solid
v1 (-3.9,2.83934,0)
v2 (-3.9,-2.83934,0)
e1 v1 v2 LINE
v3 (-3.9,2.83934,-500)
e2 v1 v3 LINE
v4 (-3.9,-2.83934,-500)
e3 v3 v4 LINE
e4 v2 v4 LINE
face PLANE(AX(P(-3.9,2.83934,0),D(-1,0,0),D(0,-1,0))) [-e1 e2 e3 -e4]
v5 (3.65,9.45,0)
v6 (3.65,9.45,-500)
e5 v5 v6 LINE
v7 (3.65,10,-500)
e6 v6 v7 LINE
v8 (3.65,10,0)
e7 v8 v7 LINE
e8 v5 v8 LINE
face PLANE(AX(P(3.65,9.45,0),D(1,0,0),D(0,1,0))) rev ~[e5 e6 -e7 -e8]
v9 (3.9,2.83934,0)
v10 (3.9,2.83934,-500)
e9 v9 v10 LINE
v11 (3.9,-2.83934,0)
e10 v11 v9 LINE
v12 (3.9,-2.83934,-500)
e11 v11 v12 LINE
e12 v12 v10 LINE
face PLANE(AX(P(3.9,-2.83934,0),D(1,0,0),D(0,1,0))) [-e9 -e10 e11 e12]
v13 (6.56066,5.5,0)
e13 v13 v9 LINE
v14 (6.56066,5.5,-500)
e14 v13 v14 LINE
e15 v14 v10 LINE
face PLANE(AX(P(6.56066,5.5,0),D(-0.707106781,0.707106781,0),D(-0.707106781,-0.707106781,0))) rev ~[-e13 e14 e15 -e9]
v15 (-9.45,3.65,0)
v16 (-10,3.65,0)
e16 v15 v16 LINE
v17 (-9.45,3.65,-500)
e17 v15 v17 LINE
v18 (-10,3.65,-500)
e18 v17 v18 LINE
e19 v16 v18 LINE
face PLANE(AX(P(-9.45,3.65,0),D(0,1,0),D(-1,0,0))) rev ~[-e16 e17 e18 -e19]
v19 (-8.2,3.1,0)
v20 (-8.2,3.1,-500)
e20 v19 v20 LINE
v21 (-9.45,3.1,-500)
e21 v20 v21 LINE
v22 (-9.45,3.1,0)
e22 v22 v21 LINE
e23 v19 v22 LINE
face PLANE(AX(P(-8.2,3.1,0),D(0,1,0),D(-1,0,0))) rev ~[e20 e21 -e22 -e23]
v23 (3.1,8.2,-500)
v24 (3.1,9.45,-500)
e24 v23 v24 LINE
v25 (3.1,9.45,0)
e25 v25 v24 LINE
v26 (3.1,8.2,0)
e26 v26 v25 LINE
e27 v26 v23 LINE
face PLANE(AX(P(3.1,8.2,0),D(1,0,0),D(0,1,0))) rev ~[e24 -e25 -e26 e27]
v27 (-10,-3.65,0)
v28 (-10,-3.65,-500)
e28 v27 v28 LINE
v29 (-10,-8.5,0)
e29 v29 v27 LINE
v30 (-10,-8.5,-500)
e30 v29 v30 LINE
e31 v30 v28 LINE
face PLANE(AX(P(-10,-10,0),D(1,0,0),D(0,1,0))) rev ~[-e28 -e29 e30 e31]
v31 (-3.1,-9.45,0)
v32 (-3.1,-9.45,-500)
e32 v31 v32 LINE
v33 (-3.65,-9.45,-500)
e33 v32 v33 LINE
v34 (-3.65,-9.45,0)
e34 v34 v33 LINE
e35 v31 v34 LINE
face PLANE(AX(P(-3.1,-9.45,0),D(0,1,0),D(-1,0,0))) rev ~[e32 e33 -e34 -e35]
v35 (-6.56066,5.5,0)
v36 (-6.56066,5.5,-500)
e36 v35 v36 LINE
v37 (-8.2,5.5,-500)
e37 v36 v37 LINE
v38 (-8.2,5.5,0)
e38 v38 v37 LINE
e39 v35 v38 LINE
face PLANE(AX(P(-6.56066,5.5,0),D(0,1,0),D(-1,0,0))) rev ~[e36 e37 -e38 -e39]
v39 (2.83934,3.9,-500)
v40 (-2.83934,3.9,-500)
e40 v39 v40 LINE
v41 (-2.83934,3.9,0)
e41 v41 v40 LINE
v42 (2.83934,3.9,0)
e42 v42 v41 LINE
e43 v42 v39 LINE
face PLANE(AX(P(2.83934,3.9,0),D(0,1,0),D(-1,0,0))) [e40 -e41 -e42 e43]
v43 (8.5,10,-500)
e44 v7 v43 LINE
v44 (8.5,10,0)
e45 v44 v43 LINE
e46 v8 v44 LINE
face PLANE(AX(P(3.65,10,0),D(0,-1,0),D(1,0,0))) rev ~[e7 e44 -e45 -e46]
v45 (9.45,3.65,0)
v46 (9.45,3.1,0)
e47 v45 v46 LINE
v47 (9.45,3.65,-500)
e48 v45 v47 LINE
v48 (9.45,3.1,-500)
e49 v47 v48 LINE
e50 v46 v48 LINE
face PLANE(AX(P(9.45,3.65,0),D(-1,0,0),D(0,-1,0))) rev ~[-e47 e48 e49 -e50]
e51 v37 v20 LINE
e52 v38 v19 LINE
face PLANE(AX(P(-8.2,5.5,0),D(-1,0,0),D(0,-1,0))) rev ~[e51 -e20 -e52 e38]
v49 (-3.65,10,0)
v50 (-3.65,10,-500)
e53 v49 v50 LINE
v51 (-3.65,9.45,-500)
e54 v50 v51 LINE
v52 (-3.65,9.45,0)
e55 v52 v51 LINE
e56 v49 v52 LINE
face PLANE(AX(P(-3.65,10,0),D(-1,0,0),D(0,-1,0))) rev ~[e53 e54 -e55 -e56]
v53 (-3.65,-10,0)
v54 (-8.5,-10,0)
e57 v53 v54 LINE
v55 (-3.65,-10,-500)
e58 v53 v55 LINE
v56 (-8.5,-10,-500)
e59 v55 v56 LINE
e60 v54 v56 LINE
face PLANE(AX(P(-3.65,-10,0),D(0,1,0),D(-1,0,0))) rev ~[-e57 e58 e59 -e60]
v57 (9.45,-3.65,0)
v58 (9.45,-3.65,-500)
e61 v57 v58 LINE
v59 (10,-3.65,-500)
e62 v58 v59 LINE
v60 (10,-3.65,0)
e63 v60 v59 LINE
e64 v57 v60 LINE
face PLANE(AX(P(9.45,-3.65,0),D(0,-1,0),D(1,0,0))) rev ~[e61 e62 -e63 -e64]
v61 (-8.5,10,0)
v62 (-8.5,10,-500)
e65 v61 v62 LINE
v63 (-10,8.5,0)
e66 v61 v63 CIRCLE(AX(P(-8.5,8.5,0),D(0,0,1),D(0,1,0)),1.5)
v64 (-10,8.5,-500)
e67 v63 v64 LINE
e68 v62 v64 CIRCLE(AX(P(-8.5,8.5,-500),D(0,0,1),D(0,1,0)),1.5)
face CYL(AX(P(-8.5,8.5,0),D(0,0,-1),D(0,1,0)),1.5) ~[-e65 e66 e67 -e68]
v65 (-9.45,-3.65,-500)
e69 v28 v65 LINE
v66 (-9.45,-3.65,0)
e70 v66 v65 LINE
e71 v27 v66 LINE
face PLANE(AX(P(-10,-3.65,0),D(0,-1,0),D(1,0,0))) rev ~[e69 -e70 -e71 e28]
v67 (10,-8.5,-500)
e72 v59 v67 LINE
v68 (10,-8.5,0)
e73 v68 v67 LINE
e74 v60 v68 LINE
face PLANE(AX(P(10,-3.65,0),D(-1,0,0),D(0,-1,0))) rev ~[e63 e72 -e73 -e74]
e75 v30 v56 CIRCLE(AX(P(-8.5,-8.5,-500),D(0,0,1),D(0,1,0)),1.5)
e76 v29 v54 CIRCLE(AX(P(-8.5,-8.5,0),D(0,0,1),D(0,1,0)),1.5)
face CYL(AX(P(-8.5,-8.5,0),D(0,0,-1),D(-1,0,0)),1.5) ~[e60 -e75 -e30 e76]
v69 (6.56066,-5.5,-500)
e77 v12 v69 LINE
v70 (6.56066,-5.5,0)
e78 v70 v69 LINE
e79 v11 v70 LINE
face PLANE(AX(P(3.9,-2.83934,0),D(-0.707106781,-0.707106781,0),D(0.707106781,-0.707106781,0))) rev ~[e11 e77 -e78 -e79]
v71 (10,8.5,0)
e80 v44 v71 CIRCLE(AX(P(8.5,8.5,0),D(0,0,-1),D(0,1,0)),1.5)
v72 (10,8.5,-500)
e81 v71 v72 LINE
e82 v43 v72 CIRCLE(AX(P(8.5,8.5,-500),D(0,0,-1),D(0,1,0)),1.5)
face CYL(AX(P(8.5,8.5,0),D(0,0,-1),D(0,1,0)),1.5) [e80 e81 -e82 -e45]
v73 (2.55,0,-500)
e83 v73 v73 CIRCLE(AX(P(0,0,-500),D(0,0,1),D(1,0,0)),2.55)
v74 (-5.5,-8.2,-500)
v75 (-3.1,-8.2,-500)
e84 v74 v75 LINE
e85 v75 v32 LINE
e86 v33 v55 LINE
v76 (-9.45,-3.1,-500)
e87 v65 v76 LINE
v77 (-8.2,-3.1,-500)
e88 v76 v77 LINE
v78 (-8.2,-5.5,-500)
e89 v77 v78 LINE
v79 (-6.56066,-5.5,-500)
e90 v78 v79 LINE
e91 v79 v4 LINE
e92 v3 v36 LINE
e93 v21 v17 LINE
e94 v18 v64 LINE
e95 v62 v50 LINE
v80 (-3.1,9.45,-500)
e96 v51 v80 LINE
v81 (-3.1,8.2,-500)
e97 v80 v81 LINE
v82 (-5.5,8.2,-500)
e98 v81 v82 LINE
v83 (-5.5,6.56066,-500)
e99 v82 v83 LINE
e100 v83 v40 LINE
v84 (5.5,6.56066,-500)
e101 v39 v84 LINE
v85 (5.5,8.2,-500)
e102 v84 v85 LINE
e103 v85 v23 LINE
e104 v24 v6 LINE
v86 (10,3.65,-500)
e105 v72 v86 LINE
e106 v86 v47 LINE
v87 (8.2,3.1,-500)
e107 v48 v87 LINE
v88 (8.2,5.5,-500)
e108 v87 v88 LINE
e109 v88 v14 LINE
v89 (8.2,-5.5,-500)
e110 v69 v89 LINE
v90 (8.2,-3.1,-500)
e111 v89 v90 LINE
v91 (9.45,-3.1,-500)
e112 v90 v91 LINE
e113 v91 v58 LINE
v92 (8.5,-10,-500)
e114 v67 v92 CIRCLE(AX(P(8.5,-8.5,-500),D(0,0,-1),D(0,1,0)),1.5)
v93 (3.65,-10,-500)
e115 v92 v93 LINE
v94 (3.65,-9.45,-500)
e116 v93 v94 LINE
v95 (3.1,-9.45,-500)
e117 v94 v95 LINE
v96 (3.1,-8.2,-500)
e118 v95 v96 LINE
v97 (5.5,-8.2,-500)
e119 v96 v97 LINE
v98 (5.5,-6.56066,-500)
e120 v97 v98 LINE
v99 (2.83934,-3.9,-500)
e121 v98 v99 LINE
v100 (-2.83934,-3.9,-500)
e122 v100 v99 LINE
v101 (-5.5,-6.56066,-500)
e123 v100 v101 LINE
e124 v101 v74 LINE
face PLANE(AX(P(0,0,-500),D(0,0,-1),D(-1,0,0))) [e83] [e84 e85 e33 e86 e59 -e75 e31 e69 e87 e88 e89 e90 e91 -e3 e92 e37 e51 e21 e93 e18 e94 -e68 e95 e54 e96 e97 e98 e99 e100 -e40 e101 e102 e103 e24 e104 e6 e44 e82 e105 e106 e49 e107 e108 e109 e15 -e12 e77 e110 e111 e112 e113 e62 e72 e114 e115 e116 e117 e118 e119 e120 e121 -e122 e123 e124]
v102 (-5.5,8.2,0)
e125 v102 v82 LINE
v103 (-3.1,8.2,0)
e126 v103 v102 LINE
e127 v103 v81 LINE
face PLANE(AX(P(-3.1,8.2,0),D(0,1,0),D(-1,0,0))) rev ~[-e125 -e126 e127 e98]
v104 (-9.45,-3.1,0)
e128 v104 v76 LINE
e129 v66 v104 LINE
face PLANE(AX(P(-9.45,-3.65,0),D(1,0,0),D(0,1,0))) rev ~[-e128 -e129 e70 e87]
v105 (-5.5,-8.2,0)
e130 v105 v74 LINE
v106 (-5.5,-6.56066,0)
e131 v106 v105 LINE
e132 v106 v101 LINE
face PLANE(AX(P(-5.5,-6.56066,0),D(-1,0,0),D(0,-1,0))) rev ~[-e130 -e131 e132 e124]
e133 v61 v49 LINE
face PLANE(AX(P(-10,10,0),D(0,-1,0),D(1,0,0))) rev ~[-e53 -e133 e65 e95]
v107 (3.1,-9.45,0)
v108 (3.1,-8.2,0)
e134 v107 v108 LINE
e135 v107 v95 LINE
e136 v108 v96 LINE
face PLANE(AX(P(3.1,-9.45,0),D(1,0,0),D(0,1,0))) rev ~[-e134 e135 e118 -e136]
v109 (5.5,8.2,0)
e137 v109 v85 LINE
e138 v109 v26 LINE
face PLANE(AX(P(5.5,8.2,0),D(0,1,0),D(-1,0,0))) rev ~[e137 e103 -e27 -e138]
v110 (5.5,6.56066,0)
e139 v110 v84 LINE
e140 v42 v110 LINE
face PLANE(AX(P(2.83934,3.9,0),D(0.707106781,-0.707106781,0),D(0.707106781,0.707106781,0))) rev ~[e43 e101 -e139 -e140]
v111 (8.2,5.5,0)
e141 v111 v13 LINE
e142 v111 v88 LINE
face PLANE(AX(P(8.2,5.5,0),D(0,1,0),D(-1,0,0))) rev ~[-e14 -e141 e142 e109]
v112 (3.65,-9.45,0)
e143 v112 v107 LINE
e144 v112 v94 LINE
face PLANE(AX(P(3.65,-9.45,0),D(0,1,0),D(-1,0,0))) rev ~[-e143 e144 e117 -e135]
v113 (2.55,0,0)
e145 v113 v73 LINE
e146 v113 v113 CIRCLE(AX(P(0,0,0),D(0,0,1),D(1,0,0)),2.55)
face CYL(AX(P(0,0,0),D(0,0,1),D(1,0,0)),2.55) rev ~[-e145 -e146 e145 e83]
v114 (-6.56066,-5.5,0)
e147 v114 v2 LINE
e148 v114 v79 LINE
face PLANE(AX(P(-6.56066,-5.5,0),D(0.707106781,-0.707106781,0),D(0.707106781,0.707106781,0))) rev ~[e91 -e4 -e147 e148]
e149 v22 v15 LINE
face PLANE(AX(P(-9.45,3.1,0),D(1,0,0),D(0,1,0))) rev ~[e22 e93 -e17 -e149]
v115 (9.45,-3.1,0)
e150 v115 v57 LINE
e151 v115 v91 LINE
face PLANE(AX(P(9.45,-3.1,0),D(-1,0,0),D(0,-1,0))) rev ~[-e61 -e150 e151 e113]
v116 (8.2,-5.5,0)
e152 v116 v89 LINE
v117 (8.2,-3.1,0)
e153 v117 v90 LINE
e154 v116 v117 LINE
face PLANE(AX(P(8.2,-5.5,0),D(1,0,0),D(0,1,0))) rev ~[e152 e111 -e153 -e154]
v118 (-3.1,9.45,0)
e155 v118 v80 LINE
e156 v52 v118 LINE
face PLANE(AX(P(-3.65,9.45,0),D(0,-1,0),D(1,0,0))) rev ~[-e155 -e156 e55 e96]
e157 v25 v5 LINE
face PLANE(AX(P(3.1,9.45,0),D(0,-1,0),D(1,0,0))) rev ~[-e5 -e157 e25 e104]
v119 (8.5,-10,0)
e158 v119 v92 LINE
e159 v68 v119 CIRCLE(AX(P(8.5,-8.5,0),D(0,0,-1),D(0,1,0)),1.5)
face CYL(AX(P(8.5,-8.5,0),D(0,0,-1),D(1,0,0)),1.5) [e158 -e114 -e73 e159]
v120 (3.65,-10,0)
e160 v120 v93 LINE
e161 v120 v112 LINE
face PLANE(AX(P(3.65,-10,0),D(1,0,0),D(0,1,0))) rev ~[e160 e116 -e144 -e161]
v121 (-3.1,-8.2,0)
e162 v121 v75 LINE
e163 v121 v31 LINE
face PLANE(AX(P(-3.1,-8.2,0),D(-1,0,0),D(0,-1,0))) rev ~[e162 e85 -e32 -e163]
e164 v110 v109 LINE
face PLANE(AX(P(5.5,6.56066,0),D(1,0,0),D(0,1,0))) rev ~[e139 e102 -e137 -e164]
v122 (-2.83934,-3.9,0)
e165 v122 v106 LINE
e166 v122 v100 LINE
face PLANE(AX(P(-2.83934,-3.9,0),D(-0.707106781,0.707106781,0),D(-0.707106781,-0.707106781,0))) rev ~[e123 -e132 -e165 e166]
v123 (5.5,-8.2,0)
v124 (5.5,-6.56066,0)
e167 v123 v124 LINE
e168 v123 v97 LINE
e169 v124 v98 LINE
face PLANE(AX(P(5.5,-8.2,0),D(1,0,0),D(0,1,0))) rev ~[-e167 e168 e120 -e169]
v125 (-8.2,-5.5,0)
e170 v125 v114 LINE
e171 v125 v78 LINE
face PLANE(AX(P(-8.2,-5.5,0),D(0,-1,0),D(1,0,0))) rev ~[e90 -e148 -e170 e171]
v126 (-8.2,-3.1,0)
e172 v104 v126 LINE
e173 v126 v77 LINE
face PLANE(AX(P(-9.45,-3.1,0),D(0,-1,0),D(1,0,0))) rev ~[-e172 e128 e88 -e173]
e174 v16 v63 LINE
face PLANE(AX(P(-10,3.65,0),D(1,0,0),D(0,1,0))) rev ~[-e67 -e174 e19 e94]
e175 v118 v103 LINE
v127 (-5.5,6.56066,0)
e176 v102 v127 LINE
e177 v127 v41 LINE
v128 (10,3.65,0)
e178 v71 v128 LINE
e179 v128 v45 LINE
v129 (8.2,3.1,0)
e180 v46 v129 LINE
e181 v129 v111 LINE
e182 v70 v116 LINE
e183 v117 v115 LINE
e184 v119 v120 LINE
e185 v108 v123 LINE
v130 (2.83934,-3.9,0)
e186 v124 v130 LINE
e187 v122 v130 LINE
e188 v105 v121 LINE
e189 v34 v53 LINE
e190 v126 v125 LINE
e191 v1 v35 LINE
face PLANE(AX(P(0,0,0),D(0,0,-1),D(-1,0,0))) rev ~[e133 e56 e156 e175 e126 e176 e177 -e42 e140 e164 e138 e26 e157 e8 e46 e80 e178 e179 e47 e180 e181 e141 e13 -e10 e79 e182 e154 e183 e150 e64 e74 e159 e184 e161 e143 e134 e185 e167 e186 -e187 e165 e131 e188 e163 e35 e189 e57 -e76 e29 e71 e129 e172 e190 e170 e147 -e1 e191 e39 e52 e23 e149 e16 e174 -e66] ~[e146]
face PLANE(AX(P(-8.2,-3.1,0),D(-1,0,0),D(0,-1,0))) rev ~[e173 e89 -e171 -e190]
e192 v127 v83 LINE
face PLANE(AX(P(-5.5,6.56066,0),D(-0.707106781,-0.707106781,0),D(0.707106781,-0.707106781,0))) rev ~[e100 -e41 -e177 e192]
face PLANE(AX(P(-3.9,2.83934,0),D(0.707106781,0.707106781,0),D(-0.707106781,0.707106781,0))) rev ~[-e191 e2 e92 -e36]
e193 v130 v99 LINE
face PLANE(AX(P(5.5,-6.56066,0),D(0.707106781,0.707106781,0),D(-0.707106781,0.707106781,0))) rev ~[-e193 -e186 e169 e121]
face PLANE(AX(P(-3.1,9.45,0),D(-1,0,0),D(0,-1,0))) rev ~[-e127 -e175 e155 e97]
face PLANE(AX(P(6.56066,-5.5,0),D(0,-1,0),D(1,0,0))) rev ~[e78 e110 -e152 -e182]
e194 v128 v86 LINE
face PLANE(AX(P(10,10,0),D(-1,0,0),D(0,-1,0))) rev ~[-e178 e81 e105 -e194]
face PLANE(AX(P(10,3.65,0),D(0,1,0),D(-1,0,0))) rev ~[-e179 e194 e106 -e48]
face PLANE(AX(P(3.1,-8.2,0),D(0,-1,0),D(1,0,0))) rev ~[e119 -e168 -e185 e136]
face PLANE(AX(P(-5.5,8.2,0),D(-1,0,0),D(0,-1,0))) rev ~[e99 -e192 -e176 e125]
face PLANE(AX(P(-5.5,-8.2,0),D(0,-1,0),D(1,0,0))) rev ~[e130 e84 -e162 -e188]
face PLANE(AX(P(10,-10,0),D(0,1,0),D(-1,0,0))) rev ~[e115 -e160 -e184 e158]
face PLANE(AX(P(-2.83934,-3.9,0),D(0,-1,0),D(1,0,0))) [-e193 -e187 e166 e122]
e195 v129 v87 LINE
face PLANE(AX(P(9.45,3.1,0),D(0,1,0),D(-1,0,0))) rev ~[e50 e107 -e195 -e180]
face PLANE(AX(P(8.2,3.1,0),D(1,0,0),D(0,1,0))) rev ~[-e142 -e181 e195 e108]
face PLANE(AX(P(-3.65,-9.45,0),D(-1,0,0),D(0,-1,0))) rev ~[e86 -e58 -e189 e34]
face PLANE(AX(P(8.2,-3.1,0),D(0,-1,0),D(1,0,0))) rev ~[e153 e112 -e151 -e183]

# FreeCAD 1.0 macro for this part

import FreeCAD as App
import Part
import Sketcher


def edges_at(feature, points):
    """Names of the edges that pass closest to the given points."""
    edges = feature.Shape.Edges
    near = lambda p: min(range(len(edges)), key=lambda i: edges[i].distToShape(Part.Vertex(*p))[0])
    return sorted({f"Edge{near(p) + 1}" for p in points})


def add_polygon(sketch, points):
    """Adds a closed chain of lines whose ends are joined by coincident constraints."""
    first, n = sketch.GeometryCount, len(points)
    for a, b in zip(points, points[1:] + points[:1]):
        sketch.addGeometry(Part.LineSegment(App.Vector(*a, 0), App.Vector(*b, 0)), False)
    for i in range(n):
        sketch.addConstraint(Sketcher.Constraint("Coincident", first + i, 2, first + (i + 1) % n, 1))

doc = App.newDocument("Part")
body = doc.addObject("PartDesign::Body", "Body")

# Sketch on XY plane
sketch1 = body.newObject("Sketcher::SketchObject", "Sketch")
sketch1.AttachmentSupport = (doc.getObject("XY_Plane"), [""])
sketch1.MapMode = "FlatFace"
add_polygon(sketch1, [(-3.6, 10), (-10, 10), (-10, 3.6), (-9.4, 3.6), (-9.4, 3.1), (-8.2, 3.1), (-8.2, 5.5), (-6.6, 5.5), (-3.9, 2.8), (-3.9, -2.8), (-6.6, -5.5), (-8.2, -5.5), (-8.2, -3.1), (-9.4, -3.1), (-9.4, -3.6), (-10, -3.6), (-10, -10), (-3.6, -10), (-3.6, -9.4), (-3.1, -9.4), (-3.1, -8.2), (-5.5, -8.2), (-5.5, -6.6), (-2.8, -3.9), (2.8, -3.9), (5.5, -6.6), (5.5, -8.2), (3.1, -8.2), (3.1, -9.4), (3.6, -9.4), (3.6, -10), (10, -10), (10, -3.6), (9.4, -3.6), (9.4, -3.1), (8.2, -3.1), (8.2, -5.5), (6.6, -5.5), (3.9, -2.8), (3.9, 2.8), (6.6, 5.5), (8.2, 5.5), (8.2, 3.1), (9.4, 3.1), (9.4, 3.6), (10, 3.6), (10, 10), (3.6, 10), (3.6, 9.4), (3.1, 9.4), (3.1, 8.2), (5.5, 8.2), (5.5, 6.6), (2.8, 3.9), (-2.8, 3.9), (-5.5, 6.6), (-5.5, 8.2), (-3.1, 8.2), (-3.1, 9.4), (-3.6, 9.4)])  # lines 0-59
sketch1.addConstraint(Sketcher.Constraint("Horizontal", 0))
sketch1.addConstraint(Sketcher.Constraint("Vertical", 1))
sketch1.addConstraint(Sketcher.Constraint("Horizontal", 2))
sketch1.addConstraint(Sketcher.Constraint("Vertical", 3))
sketch1.addConstraint(Sketcher.Constraint("Horizontal", 4))
sketch1.addConstraint(Sketcher.Constraint("Vertical", 5))
sketch1.addConstraint(Sketcher.Constraint("Horizontal", 6))
sketch1.addConstraint(Sketcher.Constraint("Vertical", 8))
sketch1.addConstraint(Sketcher.Constraint("Horizontal", 10))
sketch1.addConstraint(Sketcher.Constraint("Vertical", 11))
sketch1.addConstraint(Sketcher.Constraint("Horizontal", 12))
sketch1.addConstraint(Sketcher.Constraint("Vertical", 13))
sketch1.addConstraint(Sketcher.Constraint("Horizontal", 14))
sketch1.addConstraint(Sketcher.Constraint("Vertical", 15))
sketch1.addConstraint(Sketcher.Constraint("Horizontal", 16))
sketch1.addConstraint(Sketcher.Constraint("Vertical", 17))
sketch1.addConstraint(Sketcher.Constraint("Horizontal", 18))
sketch1.addConstraint(Sketcher.Constraint("Vertical", 19))
sketch1.addConstraint(Sketcher.Constraint("Horizontal", 20))
sketch1.addConstraint(Sketcher.Constraint("Vertical", 21))
sketch1.addConstraint(Sketcher.Constraint("Horizontal", 23))
sketch1.addConstraint(Sketcher.Constraint("Vertical", 25))
sketch1.addConstraint(Sketcher.Constraint("Horizontal", 26))
sketch1.addConstraint(Sketcher.Constraint("Vertical", 27))
sketch1.addConstraint(Sketcher.Constraint("Horizontal", 28))
sketch1.addConstraint(Sketcher.Constraint("Vertical", 29))
sketch1.addConstraint(Sketcher.Constraint("Horizontal", 30))
sketch1.addConstraint(Sketcher.Constraint("Vertical", 31))
sketch1.addConstraint(Sketcher.Constraint("Horizontal", 32))
sketch1.addConstraint(Sketcher.Constraint("Vertical", 33))
sketch1.addConstraint(Sketcher.Constraint("Horizontal", 34))
sketch1.addConstraint(Sketcher.Constraint("Vertical", 35))
sketch1.addConstraint(Sketcher.Constraint("Horizontal", 36))
sketch1.addConstraint(Sketcher.Constraint("Vertical", 38))
sketch1.addConstraint(Sketcher.Constraint("Horizontal", 40))
sketch1.addConstraint(Sketcher.Constraint("Vertical", 41))
sketch1.addConstraint(Sketcher.Constraint("Horizontal", 42))
sketch1.addConstraint(Sketcher.Constraint("Vertical", 43))
sketch1.addConstraint(Sketcher.Constraint("Horizontal", 44))
sketch1.addConstraint(Sketcher.Constraint("Vertical", 45))
sketch1.addConstraint(Sketcher.Constraint("Horizontal", 46))
sketch1.addConstraint(Sketcher.Constraint("Vertical", 47))
sketch1.addConstraint(Sketcher.Constraint("Horizontal", 48))
sketch1.addConstraint(Sketcher.Constraint("Vertical", 49))
sketch1.addConstraint(Sketcher.Constraint("Horizontal", 50))
sketch1.addConstraint(Sketcher.Constraint("Vertical", 51))
sketch1.addConstraint(Sketcher.Constraint("Horizontal", 53))
sketch1.addConstraint(Sketcher.Constraint("Vertical", 55))
sketch1.addConstraint(Sketcher.Constraint("Horizontal", 56))
sketch1.addConstraint(Sketcher.Constraint("Vertical", 57))
sketch1.addConstraint(Sketcher.Constraint("Horizontal", 58))
sketch1.addConstraint(Sketcher.Constraint("Vertical", 59))
sketch1.addConstraint(Sketcher.Constraint("Symmetric", 0, 2, 30, 2, -1, 1))
sketch1.addConstraint(Sketcher.Constraint("Symmetric", 2, 2, 32, 2, -1, 1))
sketch1.addConstraint(Sketcher.Constraint("Symmetric", 4, 2, 34, 2, -1, 1))
sketch1.addConstraint(Sketcher.Constraint("Symmetric", 6, 2, 36, 2, -1, 1))
sketch1.addConstraint(Sketcher.Constraint("Symmetric", 7, 2, 37, 2, -1, 1))
sketch1.addConstraint(Sketcher.Constraint("Symmetric", 9, 2, 39, 2, -1, 1))
sketch1.addConstraint(Sketcher.Constraint("Symmetric", 11, 2, 41, 2, -1, 1))
sketch1.addConstraint(Sketcher.Constraint("Symmetric", 13, 2, 43, 2, -1, 1))
sketch1.addConstraint(Sketcher.Constraint("Symmetric", 15, 2, 45, 2, -1, 1))
sketch1.addConstraint(Sketcher.Constraint("Symmetric", 17, 2, 47, 2, -1, 1))
sketch1.addConstraint(Sketcher.Constraint("Symmetric", 19, 2, 49, 2, -1, 1))
sketch1.addConstraint(Sketcher.Constraint("Symmetric", 21, 2, 51, 2, -1, 1))
sketch1.addConstraint(Sketcher.Constraint("Symmetric", 22, 2, 52, 2, -1, 1))
sketch1.addConstraint(Sketcher.Constraint("Symmetric", 24, 2, 54, 2, -1, 1))
sketch1.addConstraint(Sketcher.Constraint("Symmetric", 26, 2, 56, 2, -1, 1))
sketch1.addConstraint(Sketcher.Constraint("Symmetric", 28, 2, 58, 2, -1, 1))
sketch1.addConstraint(Sketcher.Constraint("Symmetric", 21, 2, 24, 2, -2))
sketch1.addConstraint(Sketcher.Constraint("Symmetric", 19, 2, 26, 2, -2))
sketch1.addConstraint(Sketcher.Constraint("Symmetric", 17, 2, 28, 2, -2))
sketch1.addConstraint(Sketcher.Constraint("Symmetric", 15, 2, 30, 2, -2))
sketch1.addConstraint(Sketcher.Constraint("Symmetric", 13, 2, 32, 2, -2))
sketch1.addConstraint(Sketcher.Constraint("Symmetric", 11, 2, 34, 2, -2))
sketch1.addConstraint(Sketcher.Constraint("Symmetric", 9, 2, 36, 2, -2))
sketch1.addConstraint(Sketcher.Constraint("Perpendicular", 7, 9))
sketch1.addConstraint(Sketcher.Constraint("Parallel", 9, 22))
sketch1.addConstraint(Sketcher.Constraint("Perpendicular", 22, 24))
sketch1.addConstraint(Sketcher.Constraint("Perpendicular", 37, 39))
sketch1.addConstraint(Sketcher.Constraint("Perpendicular", 52, 54))
sketch1.addConstraint(Sketcher.Constraint("Horizontal", 8, 2, 37, 2))
sketch1.addConstraint(Sketcher.Constraint("Equal", 14, 18))
sketch1.addConstraint(Sketcher.Constraint("Equal", 46, 1))
sketch1.addConstraint(Sketcher.Constraint("Equal", 58, 3))
sketch1.addConstraint(Sketcher.Constraint("Equal", 56, 5))
sketch1.addConstraint(Sketcher.Constraint("Equal", 53, 8))
sketch1.addConstraint(Sketcher.Constraint("Equal", 13, 17))
sketch1.addConstraint(Sketcher.Constraint("Equal", 42, 19))
sketch1.addConstraint(Sketcher.Constraint("Equal", 40, 21))
sketch1.addConstraint(Sketcher.Constraint("Equal", 9, 22))
sketch1.addConstraint(Sketcher.Constraint("DistanceX", 20, 2, 20, 1, 2.4))
sketch1.addConstraint(Sketcher.Constraint("DistanceX", 0, 2, -1, 1, 10.0))
sketch1.addConstraint(Sketcher.Constraint("DistanceX", 0, 2, 0, 1, 6.35))
sketch1.addConstraint(Sketcher.Constraint("DistanceX", 2, 1, 2, 2, 0.55))
sketch1.addConstraint(Sketcher.Constraint("DistanceX", 4, 1, 4, 2, 1.25))
sketch1.addConstraint(Sketcher.Constraint("DistanceX", 7, 2, -1, 1, 3.9))
sketch1.addConstraint(Sketcher.Constraint("DistanceX", 6, 1, 6, 2, 1.63934))
pad1 = body.newObject("PartDesign::Pad", "Pad")
pad1.Profile = sketch1
pad1.Length = 500
pad1.Reversed = True

# Sketch on XY plane
sketch2 = body.newObject("Sketcher::SketchObject", "Sketch001")
sketch2.AttachmentSupport = (doc.getObject("XY_Plane"), [""])
sketch2.MapMode = "FlatFace"
sketch2.addGeometry(Part.Circle(App.Vector(0, 0, 0), App.Vector(0, 0, 1), 2.5), False)
sketch2.addConstraint(Sketcher.Constraint("Coincident", 0, 3, -1, 1))
sketch2.addConstraint(Sketcher.Constraint("Diameter", 0, 5.1))
pocket1 = body.newObject("PartDesign::Pocket", "Pocket")
pocket1.Profile = sketch2
pocket1.Type = "ThroughAll"
doc.recompute()

fillet = body.newObject("PartDesign::Fillet", "Fillet")
fillet.Base = (pocket1, edges_at(pocket1, [
    (10, 10, -250),
    (10, -10, -250),
    (-10, -10, -250),
    (-10, 10, -250),
]))
fillet.Radius = 1.5

doc.recompute()
